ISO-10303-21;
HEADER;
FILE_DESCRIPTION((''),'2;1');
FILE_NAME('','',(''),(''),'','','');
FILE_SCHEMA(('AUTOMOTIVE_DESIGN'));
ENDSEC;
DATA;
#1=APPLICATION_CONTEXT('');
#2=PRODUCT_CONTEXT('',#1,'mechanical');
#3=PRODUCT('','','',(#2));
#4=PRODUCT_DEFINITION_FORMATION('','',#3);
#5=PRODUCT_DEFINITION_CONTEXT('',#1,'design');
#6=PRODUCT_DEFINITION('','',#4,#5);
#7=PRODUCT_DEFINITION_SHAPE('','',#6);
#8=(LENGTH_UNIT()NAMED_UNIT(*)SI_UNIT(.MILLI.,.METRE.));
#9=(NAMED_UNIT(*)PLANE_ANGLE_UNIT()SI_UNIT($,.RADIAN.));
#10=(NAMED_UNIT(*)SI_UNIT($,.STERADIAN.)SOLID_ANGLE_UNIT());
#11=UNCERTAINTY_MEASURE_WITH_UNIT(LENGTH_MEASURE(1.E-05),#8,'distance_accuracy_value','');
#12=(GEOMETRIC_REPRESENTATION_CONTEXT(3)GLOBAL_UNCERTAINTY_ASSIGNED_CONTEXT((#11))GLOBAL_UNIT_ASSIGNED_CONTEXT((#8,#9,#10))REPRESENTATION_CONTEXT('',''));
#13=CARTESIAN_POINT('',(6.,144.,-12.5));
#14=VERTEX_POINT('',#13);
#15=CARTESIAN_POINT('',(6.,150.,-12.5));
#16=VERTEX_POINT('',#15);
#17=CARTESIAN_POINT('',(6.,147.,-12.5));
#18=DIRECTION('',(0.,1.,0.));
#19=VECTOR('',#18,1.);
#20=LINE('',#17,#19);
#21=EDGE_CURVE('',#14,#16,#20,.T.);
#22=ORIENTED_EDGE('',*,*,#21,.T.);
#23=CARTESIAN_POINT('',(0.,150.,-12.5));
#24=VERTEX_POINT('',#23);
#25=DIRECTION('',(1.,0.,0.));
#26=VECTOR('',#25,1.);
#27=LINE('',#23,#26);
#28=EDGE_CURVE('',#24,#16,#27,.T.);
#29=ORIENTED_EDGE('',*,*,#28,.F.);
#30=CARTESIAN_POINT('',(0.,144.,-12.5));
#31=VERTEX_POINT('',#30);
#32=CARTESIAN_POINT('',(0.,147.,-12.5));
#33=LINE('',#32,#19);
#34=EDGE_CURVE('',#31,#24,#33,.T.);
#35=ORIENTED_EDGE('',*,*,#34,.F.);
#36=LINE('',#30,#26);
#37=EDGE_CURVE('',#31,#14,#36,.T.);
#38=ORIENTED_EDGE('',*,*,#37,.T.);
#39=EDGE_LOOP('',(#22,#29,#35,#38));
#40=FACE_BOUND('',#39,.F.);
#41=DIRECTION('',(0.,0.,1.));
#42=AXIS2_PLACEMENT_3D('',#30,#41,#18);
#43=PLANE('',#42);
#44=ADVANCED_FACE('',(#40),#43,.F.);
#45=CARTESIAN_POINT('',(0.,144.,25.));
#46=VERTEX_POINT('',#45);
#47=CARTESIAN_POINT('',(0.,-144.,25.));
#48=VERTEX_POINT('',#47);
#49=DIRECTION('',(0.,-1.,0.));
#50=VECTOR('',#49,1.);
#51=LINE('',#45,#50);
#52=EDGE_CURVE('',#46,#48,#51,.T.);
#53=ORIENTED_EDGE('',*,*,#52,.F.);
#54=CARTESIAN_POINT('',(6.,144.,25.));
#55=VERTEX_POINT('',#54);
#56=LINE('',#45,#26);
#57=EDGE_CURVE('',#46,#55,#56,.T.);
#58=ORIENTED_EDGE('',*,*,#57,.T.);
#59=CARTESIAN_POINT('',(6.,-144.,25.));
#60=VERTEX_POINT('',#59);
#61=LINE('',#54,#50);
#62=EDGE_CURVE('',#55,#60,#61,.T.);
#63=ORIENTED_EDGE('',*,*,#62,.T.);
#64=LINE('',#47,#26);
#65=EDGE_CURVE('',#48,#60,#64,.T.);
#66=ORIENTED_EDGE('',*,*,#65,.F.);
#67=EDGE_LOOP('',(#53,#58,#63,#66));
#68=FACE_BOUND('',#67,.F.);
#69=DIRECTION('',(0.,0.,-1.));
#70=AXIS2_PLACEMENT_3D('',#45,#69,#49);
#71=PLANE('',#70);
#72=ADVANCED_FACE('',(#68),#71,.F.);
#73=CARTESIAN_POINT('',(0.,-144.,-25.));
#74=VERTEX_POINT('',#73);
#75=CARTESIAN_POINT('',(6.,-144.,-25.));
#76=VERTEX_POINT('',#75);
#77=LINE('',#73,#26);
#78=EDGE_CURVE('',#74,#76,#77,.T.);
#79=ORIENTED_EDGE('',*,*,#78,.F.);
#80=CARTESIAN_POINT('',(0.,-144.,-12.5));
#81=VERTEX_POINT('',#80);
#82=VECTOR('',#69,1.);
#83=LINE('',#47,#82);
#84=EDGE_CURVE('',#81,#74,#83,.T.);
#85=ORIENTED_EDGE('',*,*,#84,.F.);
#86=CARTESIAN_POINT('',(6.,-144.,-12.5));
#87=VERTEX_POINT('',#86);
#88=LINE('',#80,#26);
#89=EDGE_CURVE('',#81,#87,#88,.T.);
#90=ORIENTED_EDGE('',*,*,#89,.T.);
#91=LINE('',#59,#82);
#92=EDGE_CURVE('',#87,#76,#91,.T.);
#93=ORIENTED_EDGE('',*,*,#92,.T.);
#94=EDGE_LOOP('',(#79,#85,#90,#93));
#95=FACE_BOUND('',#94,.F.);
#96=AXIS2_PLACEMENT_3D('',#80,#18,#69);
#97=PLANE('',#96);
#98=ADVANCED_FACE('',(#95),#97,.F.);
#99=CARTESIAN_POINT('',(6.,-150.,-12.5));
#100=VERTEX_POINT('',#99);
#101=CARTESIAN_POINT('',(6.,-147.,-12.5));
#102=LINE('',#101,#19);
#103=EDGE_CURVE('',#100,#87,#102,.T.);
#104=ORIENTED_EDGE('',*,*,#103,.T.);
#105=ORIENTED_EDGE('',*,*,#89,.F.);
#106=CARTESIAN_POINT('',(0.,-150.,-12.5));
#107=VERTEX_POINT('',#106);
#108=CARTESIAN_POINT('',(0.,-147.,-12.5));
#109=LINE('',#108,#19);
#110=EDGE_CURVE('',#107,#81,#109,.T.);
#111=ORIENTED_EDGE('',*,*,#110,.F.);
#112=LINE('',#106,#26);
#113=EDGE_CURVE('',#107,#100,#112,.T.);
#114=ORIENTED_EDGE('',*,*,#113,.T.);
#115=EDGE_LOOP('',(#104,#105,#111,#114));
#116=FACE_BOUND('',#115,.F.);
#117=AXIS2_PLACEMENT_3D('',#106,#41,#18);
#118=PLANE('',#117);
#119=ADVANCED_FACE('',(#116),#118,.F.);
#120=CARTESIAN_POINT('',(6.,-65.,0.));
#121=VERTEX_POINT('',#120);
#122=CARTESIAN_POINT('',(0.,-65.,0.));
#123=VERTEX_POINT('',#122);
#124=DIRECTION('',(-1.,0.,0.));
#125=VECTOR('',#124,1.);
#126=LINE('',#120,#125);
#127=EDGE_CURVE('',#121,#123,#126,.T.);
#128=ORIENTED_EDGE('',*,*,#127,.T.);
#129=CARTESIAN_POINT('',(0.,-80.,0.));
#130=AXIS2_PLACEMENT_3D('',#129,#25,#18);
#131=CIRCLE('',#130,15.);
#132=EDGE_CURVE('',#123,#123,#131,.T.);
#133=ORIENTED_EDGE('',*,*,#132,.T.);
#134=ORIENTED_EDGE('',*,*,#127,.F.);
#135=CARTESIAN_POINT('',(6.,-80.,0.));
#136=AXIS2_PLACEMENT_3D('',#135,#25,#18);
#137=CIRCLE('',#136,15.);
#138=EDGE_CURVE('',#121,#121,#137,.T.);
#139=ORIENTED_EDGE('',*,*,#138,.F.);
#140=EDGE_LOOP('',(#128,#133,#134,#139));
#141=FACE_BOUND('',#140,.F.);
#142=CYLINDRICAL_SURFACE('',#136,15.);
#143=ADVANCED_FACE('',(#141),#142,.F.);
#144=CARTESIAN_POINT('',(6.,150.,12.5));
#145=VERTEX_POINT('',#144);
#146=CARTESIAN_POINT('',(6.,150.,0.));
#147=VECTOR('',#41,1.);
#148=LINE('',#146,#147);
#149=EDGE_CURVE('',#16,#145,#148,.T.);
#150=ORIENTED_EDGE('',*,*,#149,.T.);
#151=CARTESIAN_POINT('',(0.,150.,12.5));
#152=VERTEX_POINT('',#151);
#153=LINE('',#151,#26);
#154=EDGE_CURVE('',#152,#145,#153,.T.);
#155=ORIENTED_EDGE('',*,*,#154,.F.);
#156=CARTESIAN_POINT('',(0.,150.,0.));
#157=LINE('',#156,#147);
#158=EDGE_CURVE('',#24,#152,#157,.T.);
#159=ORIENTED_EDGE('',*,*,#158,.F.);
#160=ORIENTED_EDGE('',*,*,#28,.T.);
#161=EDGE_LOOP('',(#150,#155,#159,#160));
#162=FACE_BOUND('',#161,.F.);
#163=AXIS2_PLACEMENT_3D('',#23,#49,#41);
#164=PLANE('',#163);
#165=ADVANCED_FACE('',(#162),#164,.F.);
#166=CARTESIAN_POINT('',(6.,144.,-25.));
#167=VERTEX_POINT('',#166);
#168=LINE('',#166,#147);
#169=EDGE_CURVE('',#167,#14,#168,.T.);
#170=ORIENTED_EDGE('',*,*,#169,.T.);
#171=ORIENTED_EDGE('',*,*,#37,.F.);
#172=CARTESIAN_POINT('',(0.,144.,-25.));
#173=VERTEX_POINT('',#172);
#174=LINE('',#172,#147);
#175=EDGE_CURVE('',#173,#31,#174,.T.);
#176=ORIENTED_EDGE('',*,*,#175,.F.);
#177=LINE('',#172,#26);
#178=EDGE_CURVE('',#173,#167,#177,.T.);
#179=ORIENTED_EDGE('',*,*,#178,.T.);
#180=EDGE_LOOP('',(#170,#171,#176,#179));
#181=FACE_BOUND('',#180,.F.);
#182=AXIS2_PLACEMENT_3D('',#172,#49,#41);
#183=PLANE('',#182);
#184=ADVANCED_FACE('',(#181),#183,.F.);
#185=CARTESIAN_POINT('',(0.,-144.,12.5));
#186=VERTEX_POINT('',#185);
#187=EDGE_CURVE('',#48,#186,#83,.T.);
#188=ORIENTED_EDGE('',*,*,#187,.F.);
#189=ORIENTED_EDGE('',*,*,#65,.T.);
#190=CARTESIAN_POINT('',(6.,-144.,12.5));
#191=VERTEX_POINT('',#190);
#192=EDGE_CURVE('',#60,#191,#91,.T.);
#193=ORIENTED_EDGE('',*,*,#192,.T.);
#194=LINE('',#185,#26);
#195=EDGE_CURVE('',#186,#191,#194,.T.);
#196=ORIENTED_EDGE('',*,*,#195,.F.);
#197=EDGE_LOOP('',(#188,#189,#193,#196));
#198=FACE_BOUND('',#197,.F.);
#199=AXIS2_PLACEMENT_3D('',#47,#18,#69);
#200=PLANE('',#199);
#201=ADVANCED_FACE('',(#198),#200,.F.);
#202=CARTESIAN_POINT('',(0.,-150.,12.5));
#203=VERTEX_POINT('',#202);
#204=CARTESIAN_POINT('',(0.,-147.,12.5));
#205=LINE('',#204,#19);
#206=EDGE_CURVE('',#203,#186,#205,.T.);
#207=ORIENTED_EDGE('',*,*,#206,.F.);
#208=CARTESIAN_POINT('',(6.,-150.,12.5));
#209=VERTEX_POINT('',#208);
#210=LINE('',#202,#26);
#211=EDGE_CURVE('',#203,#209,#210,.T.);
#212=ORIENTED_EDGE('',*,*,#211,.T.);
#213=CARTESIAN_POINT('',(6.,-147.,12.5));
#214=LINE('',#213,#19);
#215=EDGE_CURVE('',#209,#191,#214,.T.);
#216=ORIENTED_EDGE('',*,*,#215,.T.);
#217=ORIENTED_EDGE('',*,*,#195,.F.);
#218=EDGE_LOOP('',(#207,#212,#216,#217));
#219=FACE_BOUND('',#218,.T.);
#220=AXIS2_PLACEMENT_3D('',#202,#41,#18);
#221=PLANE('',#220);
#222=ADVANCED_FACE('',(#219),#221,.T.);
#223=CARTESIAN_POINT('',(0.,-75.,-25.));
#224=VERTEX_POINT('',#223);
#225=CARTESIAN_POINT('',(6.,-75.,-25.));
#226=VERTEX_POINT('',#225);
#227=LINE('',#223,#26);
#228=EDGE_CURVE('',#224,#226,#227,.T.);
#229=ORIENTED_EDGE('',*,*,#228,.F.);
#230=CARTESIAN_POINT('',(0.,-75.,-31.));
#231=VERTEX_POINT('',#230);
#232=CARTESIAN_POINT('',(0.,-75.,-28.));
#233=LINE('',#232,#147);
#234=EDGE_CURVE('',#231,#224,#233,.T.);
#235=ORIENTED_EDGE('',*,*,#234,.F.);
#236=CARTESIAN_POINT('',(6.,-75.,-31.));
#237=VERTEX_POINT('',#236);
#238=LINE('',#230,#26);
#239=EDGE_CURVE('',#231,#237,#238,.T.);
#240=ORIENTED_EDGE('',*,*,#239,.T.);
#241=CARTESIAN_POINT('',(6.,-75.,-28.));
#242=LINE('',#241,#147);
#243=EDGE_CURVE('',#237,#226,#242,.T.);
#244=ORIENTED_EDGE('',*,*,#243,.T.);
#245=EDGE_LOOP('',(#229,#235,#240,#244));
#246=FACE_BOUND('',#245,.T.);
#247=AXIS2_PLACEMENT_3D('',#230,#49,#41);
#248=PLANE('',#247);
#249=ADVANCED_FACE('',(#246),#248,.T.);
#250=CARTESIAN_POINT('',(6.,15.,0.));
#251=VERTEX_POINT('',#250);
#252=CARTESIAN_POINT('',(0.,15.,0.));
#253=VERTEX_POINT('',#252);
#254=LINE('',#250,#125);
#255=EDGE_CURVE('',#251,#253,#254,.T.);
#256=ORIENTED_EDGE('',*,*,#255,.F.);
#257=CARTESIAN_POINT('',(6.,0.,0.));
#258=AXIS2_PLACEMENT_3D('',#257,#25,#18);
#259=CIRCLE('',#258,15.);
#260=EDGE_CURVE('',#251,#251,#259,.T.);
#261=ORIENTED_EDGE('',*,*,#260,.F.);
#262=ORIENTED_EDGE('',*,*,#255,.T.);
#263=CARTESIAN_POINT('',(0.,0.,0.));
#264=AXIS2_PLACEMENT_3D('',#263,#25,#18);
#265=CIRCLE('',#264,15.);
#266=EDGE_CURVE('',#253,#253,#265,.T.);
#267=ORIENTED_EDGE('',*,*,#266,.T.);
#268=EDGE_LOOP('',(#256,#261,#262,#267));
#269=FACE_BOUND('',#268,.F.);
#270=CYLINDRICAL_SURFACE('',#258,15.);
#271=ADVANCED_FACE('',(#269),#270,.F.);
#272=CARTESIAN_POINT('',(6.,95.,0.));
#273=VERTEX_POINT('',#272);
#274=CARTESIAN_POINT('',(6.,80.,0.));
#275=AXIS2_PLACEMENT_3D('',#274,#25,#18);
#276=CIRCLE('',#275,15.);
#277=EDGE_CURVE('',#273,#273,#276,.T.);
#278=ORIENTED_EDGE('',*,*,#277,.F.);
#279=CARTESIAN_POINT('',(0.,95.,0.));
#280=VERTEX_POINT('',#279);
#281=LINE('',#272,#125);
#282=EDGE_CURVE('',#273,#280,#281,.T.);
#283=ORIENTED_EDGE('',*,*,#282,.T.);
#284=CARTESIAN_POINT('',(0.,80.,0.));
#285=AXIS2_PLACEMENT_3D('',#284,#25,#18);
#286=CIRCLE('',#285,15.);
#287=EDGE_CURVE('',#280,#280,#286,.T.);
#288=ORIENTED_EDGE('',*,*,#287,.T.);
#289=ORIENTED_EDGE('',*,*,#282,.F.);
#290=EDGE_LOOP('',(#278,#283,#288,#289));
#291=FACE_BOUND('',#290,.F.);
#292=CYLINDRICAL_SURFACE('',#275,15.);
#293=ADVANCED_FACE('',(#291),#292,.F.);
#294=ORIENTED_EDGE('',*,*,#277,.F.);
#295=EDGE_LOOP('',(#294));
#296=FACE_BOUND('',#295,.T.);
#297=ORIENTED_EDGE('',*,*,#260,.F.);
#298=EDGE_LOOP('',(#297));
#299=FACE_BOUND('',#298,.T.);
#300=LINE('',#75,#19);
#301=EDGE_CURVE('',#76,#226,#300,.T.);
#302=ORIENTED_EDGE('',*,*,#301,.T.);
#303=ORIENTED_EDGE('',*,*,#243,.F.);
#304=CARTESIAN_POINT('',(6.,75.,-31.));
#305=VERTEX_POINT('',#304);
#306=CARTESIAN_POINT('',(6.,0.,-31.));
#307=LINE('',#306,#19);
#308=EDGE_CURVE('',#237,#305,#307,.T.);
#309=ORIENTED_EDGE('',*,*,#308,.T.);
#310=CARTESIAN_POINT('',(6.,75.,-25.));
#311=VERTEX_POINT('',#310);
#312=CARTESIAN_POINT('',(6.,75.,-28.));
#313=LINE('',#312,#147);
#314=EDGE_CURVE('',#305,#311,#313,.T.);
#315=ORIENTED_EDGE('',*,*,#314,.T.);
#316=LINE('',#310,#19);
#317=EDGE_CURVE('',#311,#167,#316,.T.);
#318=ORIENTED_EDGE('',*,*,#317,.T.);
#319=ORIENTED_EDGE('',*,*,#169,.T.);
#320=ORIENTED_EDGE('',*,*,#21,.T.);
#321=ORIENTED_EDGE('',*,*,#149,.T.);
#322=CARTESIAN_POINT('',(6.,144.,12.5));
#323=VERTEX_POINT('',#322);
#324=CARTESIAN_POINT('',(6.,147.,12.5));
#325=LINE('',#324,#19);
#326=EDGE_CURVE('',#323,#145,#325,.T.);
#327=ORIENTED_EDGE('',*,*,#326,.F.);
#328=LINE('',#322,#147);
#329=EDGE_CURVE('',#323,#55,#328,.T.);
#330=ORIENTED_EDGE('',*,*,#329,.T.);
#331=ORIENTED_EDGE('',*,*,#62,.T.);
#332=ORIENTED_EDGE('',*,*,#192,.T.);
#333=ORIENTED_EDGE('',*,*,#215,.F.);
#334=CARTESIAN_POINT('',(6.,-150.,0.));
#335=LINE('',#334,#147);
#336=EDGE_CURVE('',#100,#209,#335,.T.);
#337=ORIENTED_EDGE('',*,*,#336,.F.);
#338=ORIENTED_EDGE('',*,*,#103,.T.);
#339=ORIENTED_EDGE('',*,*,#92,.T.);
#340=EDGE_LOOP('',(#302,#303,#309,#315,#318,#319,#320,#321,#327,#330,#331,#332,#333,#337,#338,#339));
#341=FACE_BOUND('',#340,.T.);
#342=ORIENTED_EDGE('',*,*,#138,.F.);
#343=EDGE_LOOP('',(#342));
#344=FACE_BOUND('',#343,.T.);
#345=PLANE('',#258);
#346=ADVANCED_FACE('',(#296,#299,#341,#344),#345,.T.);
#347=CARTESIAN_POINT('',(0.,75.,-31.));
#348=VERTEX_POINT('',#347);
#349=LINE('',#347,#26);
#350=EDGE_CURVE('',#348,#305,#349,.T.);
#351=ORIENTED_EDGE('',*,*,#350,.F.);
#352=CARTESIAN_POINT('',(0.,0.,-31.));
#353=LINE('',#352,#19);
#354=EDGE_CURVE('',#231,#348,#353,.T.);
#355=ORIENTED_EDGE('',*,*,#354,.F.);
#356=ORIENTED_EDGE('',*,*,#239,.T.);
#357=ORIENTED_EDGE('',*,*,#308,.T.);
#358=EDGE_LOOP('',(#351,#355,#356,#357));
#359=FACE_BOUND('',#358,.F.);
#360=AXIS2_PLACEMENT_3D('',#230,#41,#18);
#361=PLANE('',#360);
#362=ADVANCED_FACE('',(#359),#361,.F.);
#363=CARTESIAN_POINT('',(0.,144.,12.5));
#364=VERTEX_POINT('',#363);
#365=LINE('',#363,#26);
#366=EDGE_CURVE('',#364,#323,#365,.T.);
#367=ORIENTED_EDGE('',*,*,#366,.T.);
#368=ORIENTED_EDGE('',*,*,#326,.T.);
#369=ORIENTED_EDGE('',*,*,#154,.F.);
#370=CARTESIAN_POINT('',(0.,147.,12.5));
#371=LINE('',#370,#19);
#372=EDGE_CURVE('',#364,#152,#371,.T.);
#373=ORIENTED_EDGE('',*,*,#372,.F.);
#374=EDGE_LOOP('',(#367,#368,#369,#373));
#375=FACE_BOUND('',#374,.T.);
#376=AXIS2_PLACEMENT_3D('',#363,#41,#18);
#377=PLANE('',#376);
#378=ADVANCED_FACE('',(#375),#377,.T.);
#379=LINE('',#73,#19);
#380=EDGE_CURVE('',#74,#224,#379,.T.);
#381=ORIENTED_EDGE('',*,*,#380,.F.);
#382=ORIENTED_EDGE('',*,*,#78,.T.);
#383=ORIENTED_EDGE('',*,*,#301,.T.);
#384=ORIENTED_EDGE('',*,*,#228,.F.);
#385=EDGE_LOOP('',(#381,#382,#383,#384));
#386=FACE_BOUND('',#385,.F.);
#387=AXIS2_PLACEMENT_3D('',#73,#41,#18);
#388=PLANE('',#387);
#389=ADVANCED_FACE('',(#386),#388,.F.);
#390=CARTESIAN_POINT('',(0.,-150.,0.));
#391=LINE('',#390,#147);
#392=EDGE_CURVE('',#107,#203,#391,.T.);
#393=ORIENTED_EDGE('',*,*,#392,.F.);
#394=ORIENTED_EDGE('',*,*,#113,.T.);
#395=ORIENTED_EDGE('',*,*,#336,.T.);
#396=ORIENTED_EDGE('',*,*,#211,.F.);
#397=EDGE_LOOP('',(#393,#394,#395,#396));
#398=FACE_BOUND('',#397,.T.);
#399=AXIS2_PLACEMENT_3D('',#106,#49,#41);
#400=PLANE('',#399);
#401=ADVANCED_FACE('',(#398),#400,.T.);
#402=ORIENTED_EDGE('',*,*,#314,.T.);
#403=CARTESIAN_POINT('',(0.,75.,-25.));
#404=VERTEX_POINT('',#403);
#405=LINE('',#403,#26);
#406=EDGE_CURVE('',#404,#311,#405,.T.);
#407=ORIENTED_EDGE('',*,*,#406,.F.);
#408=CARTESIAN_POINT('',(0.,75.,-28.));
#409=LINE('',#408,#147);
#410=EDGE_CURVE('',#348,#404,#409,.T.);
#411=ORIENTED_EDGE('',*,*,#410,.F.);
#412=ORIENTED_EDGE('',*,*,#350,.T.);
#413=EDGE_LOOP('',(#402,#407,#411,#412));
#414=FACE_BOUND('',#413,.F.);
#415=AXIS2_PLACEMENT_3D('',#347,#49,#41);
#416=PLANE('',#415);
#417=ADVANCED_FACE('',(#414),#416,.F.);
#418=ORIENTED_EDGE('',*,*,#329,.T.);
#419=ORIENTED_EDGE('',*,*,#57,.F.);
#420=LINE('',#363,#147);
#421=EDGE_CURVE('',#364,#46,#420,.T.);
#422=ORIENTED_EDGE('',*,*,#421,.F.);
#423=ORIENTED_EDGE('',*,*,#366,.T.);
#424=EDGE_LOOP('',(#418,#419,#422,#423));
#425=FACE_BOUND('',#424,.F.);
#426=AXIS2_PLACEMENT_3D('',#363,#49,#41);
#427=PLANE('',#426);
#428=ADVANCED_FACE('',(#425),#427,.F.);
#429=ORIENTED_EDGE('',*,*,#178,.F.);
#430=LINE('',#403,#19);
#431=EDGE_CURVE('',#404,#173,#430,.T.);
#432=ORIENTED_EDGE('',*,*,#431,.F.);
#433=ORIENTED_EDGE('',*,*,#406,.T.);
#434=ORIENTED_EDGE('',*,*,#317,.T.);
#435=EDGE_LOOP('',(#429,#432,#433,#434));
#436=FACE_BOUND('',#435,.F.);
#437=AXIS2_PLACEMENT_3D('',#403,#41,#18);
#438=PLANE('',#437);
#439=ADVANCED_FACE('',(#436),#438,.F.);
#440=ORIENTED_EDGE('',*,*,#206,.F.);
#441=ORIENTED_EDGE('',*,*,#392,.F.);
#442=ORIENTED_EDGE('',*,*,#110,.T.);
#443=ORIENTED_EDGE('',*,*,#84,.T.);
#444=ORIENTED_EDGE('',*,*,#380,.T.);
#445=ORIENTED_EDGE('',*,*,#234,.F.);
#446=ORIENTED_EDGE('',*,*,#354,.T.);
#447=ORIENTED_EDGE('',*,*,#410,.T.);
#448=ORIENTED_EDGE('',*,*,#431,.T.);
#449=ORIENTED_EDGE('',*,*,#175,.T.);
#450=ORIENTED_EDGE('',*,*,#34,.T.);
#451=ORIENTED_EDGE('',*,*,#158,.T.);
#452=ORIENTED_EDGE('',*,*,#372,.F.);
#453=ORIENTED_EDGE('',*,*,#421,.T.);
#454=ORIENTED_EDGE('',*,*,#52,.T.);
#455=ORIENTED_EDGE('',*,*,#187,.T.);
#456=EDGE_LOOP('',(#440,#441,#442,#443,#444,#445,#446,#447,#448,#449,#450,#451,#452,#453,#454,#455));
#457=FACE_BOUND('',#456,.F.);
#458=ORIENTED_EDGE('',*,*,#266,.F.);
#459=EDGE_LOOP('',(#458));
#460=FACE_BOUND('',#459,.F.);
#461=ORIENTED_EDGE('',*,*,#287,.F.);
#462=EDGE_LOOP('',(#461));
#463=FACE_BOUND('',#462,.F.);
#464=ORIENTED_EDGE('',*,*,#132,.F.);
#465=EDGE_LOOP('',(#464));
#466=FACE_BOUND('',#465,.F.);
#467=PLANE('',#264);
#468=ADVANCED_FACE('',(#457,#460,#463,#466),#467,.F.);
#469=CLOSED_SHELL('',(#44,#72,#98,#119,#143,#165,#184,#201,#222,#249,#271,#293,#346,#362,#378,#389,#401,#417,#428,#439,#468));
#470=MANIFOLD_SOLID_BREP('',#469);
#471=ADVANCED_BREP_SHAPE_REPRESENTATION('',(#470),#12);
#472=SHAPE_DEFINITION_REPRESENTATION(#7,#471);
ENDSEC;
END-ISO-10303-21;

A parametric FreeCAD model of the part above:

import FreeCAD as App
import Part
import Sketcher
Q = App.Units.Quantity

doc = App.newDocument("Part")
body = doc.addObject("PartDesign::Body", "Body")

# Sketch on YZ plane
sketch1 = body.newObject("Sketcher::SketchObject", "Sketch")
sketch1.AttachmentSupport = (doc.getObject("YZ_Plane"), [""])
sketch1.MapMode = "FlatFace"
sketch1.addGeometry([
    Part.LineSegment(App.Vector(-144, 25, 0), App.Vector(-144, 12, 0)),  # 0
    Part.LineSegment(App.Vector(-144, 12, 0), App.Vector(-150, 12, 0)),  # 1
    Part.LineSegment(App.Vector(-150, 12, 0), App.Vector(-150, -12, 0)),  # 2
    Part.LineSegment(App.Vector(-150, -12, 0), App.Vector(-144, -12, 0)),  # 3
    Part.LineSegment(App.Vector(-144, -12, 0), App.Vector(-144, -25, 0)),  # 4
    Part.LineSegment(App.Vector(-144, -25, 0), App.Vector(-75, -25, 0)),  # 5
    Part.LineSegment(App.Vector(-75, -25, 0), App.Vector(-75, -31, 0)),  # 6
    Part.LineSegment(App.Vector(-75, -31, 0), App.Vector(75, -31, 0)),  # 7
    Part.LineSegment(App.Vector(75, -31, 0), App.Vector(75, -25, 0)),  # 8
    Part.LineSegment(App.Vector(75, -25, 0), App.Vector(144, -25, 0)),  # 9
    Part.LineSegment(App.Vector(144, -25, 0), App.Vector(144, -12, 0)),  # 10
    Part.LineSegment(App.Vector(144, -12, 0), App.Vector(150, -12, 0)),  # 11
    Part.LineSegment(App.Vector(150, -12, 0), App.Vector(150, 12, 0)),  # 12
    Part.LineSegment(App.Vector(150, 12, 0), App.Vector(144, 12, 0)),  # 13
    Part.LineSegment(App.Vector(144, 12, 0), App.Vector(144, 25, 0)),  # 14
    Part.LineSegment(App.Vector(144, 25, 0), App.Vector(-144, 25, 0)),  # 15
], False)
sketch1.addConstraint([
    Sketcher.Constraint("Coincident", 0, 2, 1, 1),
    Sketcher.Constraint("Coincident", 1, 2, 2, 1),
    Sketcher.Constraint("Coincident", 2, 2, 3, 1),
    Sketcher.Constraint("Coincident", 3, 2, 4, 1),
    Sketcher.Constraint("Coincident", 4, 2, 5, 1),
    Sketcher.Constraint("Coincident", 5, 2, 6, 1),
    Sketcher.Constraint("Coincident", 6, 2, 7, 1),
    Sketcher.Constraint("Coincident", 7, 2, 8, 1),
    Sketcher.Constraint("Coincident", 8, 2, 9, 1),
    Sketcher.Constraint("Coincident", 9, 2, 10, 1),
    Sketcher.Constraint("Coincident", 10, 2, 11, 1),
    Sketcher.Constraint("Coincident", 11, 2, 12, 1),
    Sketcher.Constraint("Coincident", 12, 2, 13, 1),
    Sketcher.Constraint("Coincident", 13, 2, 14, 1),
    Sketcher.Constraint("Coincident", 14, 2, 15, 1),
    Sketcher.Constraint("Coincident", 15, 2, 0, 1),
    Sketcher.Constraint("Vertical", 0),
    Sketcher.Constraint("Horizontal", 1),
    Sketcher.Constraint("Vertical", 2),
    Sketcher.Constraint("Horizontal", 3),
    Sketcher.Constraint("Vertical", 4),
    Sketcher.Constraint("Horizontal", 5),
    Sketcher.Constraint("Vertical", 6),
    Sketcher.Constraint("Horizontal", 7),
    Sketcher.Constraint("Vertical", 8),
    Sketcher.Constraint("Horizontal", 9),
    Sketcher.Constraint("Vertical", 10),
    Sketcher.Constraint("Horizontal", 11),
    Sketcher.Constraint("Vertical", 12),
    Sketcher.Constraint("Horizontal", 13),
    Sketcher.Constraint("Vertical", 14),
    Sketcher.Constraint("Horizontal", 15),
    Sketcher.Constraint("Symmetric", 0, 2, 10, 2, -1, 1),
    Sketcher.Constraint("Symmetric", 2, 2, 12, 2, -1, 1),
    Sketcher.Constraint("Symmetric", 4, 2, 14, 2, -1, 1),
    Sketcher.Constraint("Symmetric", 5, 2, 8, 2, -2),
    Sketcher.Constraint("Symmetric", 3, 2, 10, 2, -2),
    Sketcher.Constraint("Equal", 13, 6),
    Sketcher.Constraint("DistanceX", 1, 2, 1, 1, Q("6 mm")),
    Sketcher.Constraint("DistanceX", 5, 1, 5, 2, Q("69 mm")),
    Sketcher.Constraint("DistanceX", 7, 1, 7, 2, Q("150 mm")),
    Sketcher.Constraint("DistanceY", 2, 2, 2, 1, Q("25 mm")),
    Sketcher.Constraint("DistanceY", 0, 2, 0, 1, Q("12.5 mm")),
])
pad1 = body.newObject("PartDesign::Pad", "Pad")
pad1.Profile = sketch1
pad1.Length = 6

# Sketch on YZ plane
sketch2 = body.newObject("Sketcher::SketchObject", "Sketch001")
sketch2.AttachmentSupport = (doc.getObject("YZ_Plane"), [""])
sketch2.MapMode = "FlatFace"
sketch2.AttachmentOffset = App.Placement(App.Vector(0, 0, 6), App.Rotation())
sketch2.addGeometry([
    Part.Circle(App.Vector(0, 0, 0), App.Vector(0, 0, 1), 15),
    Part.Circle(App.Vector(-80, 0, 0), App.Vector(0, 0, 1), 15),
    Part.Circle(App.Vector(80, 0, 0), App.Vector(0, 0, 1), 15),
], False)
sketch2.addConstraint([
    Sketcher.Constraint("Coincident", 0, 3, -1, 1),
    Sketcher.Constraint("Equal", 0, 1),
    Sketcher.Constraint("Equal", 1, 2),
    Sketcher.Constraint("Symmetric", 1, 3, 2, 3, -1, 1),
    Sketcher.Constraint("PointOnObject", 1, 3, -1),
    Sketcher.Constraint("Diameter", 0, Q("30 mm")),
    Sketcher.Constraint("DistanceX", 1, 3, -1, 1, Q("80 mm")),
])
pocket1 = body.newObject("PartDesign::Pocket", "Pocket")
pocket1.Profile = sketch2
pocket1.Type = "ThroughAll"

doc.recompute()
